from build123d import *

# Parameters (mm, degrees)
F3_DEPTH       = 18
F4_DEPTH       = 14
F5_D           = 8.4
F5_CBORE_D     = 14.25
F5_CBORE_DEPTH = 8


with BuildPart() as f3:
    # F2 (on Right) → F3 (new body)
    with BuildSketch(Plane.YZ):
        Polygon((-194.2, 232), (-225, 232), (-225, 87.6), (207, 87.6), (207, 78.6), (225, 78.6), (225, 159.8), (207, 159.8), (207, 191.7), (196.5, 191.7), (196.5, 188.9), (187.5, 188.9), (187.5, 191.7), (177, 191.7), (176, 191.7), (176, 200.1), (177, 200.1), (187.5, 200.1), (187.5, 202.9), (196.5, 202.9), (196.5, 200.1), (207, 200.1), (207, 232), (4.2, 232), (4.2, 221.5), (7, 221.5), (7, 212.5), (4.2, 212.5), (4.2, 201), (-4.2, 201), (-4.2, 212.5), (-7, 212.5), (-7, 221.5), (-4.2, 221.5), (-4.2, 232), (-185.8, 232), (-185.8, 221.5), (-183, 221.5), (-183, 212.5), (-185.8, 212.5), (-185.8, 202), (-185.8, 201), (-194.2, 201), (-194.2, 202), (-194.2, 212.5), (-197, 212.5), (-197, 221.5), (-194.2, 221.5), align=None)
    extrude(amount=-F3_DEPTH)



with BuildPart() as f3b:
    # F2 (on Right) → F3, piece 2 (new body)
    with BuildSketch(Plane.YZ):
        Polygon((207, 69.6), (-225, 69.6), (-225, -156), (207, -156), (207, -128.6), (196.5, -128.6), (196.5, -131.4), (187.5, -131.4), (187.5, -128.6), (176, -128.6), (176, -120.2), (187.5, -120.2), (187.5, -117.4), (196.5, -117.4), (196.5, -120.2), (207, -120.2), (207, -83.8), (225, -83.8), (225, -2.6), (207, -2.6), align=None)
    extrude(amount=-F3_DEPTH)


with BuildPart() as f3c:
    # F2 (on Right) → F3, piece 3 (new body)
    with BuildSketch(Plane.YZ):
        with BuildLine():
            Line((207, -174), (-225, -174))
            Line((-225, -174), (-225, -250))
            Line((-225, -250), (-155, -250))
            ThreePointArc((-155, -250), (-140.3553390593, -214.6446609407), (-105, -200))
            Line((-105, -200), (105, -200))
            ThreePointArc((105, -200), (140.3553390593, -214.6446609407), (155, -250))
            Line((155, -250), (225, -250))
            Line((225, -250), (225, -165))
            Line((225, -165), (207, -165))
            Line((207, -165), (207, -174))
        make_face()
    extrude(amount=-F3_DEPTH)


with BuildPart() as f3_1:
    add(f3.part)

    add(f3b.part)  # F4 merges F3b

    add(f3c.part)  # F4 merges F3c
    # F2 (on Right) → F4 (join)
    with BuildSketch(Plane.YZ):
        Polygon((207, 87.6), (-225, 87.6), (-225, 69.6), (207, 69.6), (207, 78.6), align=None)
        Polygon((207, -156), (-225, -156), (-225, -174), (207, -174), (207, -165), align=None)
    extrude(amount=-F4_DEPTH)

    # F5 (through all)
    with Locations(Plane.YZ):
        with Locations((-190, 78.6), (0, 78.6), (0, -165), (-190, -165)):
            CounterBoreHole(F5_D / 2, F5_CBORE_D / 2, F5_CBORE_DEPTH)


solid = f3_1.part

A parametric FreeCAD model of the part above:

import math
import FreeCAD as App
import Part
import Sketcher
from FreeCAD import Vector

doc = App.newDocument("Part")
body = doc.addObject("PartDesign::Body", "Body")

# Sketch on YZ plane
sketch1 = body.newObject("Sketcher::SketchObject", "Sketch")
sketch1.AttachmentSupport = (doc.getObject("YZ_Plane"), [""])
sketch1.MapMode = "FlatFace"
sketch1.addGeometry([
    Part.LineSegment(Vector(-194.2, 232, 0), Vector(-225, 232, 0)),  # 0
    Part.LineSegment(Vector(-225, 232, 0), Vector(-225, 87.6, 0)),  # 1
    Part.LineSegment(Vector(-225, 87.6, 0), Vector(207, 87.6, 0)),  # 2
    Part.LineSegment(Vector(207, 87.6, 0), Vector(207, 78.6, 0)),  # 3
    Part.LineSegment(Vector(207, 78.6, 0), Vector(225, 78.6, 0)),  # 4
    Part.LineSegment(Vector(225, 78.6, 0), Vector(225, 159.8, 0)),  # 5
    Part.LineSegment(Vector(225, 159.8, 0), Vector(207, 159.8, 0)),  # 6
    Part.LineSegment(Vector(207, 159.8, 0), Vector(207, 191.7, 0)),  # 7
    Part.LineSegment(Vector(207, 191.7, 0), Vector(196.5, 191.7, 0)),  # 8
    Part.LineSegment(Vector(196.5, 191.7, 0), Vector(196.5, 188.9, 0)),  # 9
    Part.LineSegment(Vector(196.5, 188.9, 0), Vector(187.5, 188.9, 0)),  # 10
    Part.LineSegment(Vector(187.5, 188.9, 0), Vector(187.5, 191.7, 0)),  # 11
    Part.LineSegment(Vector(187.5, 191.7, 0), Vector(176, 191.7, 0)),  # 12
    Part.LineSegment(Vector(176, 191.7, 0), Vector(176, 200.1, 0)),  # 13
    Part.LineSegment(Vector(176, 200.1, 0), Vector(187.5, 200.1, 0)),  # 14
    Part.LineSegment(Vector(187.5, 200.1, 0), Vector(187.5, 202.9, 0)),  # 15
    Part.LineSegment(Vector(187.5, 202.9, 0), Vector(196.5, 202.9, 0)),  # 16
    Part.LineSegment(Vector(196.5, 202.9, 0), Vector(196.5, 200.1, 0)),  # 17
    Part.LineSegment(Vector(196.5, 200.1, 0), Vector(207, 200.1, 0)),  # 18
    Part.LineSegment(Vector(207, 200.1, 0), Vector(207, 232, 0)),  # 19
    Part.LineSegment(Vector(207, 232, 0), Vector(4.2, 232, 0)),  # 20
    Part.LineSegment(Vector(4.2, 232, 0), Vector(4.2, 221.5, 0)),  # 21
    Part.LineSegment(Vector(4.2, 221.5, 0), Vector(7, 221.5, 0)),  # 22
    Part.LineSegment(Vector(7, 221.5, 0), Vector(7, 212.5, 0)),  # 23
    Part.LineSegment(Vector(7, 212.5, 0), Vector(4.2, 212.5, 0)),  # 24
    Part.LineSegment(Vector(4.2, 212.5, 0), Vector(4.2, 201, 0)),  # 25
    Part.LineSegment(Vector(4.2, 201, 0), Vector(-4.2, 201, 0)),  # 26
    Part.LineSegment(Vector(-4.2, 201, 0), Vector(-4.2, 212.5, 0)),  # 27
    Part.LineSegment(Vector(-4.2, 212.5, 0), Vector(-7, 212.5, 0)),  # 28
    Part.LineSegment(Vector(-7, 212.5, 0), Vector(-7, 221.5, 0)),  # 29
    Part.LineSegment(Vector(-7, 221.5, 0), Vector(-4.2, 221.5, 0)),  # 30
    Part.LineSegment(Vector(-4.2, 221.5, 0), Vector(-4.2, 232, 0)),  # 31
    Part.LineSegment(Vector(-4.2, 232, 0), Vector(-185.8, 232, 0)),  # 32
    Part.LineSegment(Vector(-185.8, 232, 0), Vector(-185.8, 221.5, 0)),  # 33
    Part.LineSegment(Vector(-185.8, 221.5, 0), Vector(-183, 221.5, 0)),  # 34
    Part.LineSegment(Vector(-183, 221.5, 0), Vector(-183, 212.5, 0)),  # 35
    Part.LineSegment(Vector(-183, 212.5, 0), Vector(-185.8, 212.5, 0)),  # 36
    Part.LineSegment(Vector(-185.8, 212.5, 0), Vector(-185.8, 201, 0)),  # 37
    Part.LineSegment(Vector(-185.8, 201, 0), Vector(-194.2, 201, 0)),  # 38
    Part.LineSegment(Vector(-194.2, 201, 0), Vector(-194.2, 212.5, 0)),  # 39
    Part.LineSegment(Vector(-194.2, 212.5, 0), Vector(-197, 212.5, 0)),  # 40
    Part.LineSegment(Vector(-197, 212.5, 0), Vector(-197, 221.5, 0)),  # 41
    Part.LineSegment(Vector(-197, 221.5, 0), Vector(-194.2, 221.5, 0)),  # 42
    Part.LineSegment(Vector(-194.2, 221.5, 0), Vector(-194.2, 232, 0)),  # 43
], False)
sketch1.addConstraint([
    Sketcher.Constraint("Coincident", 0, 2, 1, 1),
    Sketcher.Constraint("Coincident", 1, 2, 2, 1),
    Sketcher.Constraint("Coincident", 2, 2, 3, 1),
    Sketcher.Constraint("Coincident", 3, 2, 4, 1),
    Sketcher.Constraint("Coincident", 4, 2, 5, 1),
    Sketcher.Constraint("Coincident", 5, 2, 6, 1),
    Sketcher.Constraint("Coincident", 6, 2, 7, 1),
    Sketcher.Constraint("Coincident", 7, 2, 8, 1),
    Sketcher.Constraint("Coincident", 8, 2, 9, 1),
    Sketcher.Constraint("Coincident", 9, 2, 10, 1),
    Sketcher.Constraint("Coincident", 10, 2, 11, 1),
    Sketcher.Constraint("Coincident", 11, 2, 12, 1),
    Sketcher.Constraint("Coincident", 12, 2, 13, 1),
    Sketcher.Constraint("Coincident", 13, 2, 14, 1),
    Sketcher.Constraint("Coincident", 14, 2, 15, 1),
    Sketcher.Constraint("Coincident", 15, 2, 16, 1),
    Sketcher.Constraint("Coincident", 16, 2, 17, 1),
    Sketcher.Constraint("Coincident", 17, 2, 18, 1),
    Sketcher.Constraint("Coincident", 18, 2, 19, 1),
    Sketcher.Constraint("Coincident", 19, 2, 20, 1),
    Sketcher.Constraint("Coincident", 20, 2, 21, 1),
    Sketcher.Constraint("Coincident", 21, 2, 22, 1),
    Sketcher.Constraint("Coincident", 22, 2, 23, 1),
    Sketcher.Constraint("Coincident", 23, 2, 24, 1),
    Sketcher.Constraint("Coincident", 24, 2, 25, 1),
    Sketcher.Constraint("Coincident", 25, 2, 26, 1),
    Sketcher.Constraint("Coincident", 26, 2, 27, 1),
    Sketcher.Constraint("Coincident", 27, 2, 28, 1),
    Sketcher.Constraint("Coincident", 28, 2, 29, 1),
    Sketcher.Constraint("Coincident", 29, 2, 30, 1),
    Sketcher.Constraint("Coincident", 30, 2, 31, 1),
    Sketcher.Constraint("Coincident", 31, 2, 32, 1),
    Sketcher.Constraint("Coincident", 32, 2, 33, 1),
    Sketcher.Constraint("Coincident", 33, 2, 34, 1),
    Sketcher.Constraint("Coincident", 34, 2, 35, 1),
    Sketcher.Constraint("Coincident", 35, 2, 36, 1),
    Sketcher.Constraint("Coincident", 36, 2, 37, 1),
    Sketcher.Constraint("Coincident", 37, 2, 38, 1),
    Sketcher.Constraint("Coincident", 38, 2, 39, 1),
    Sketcher.Constraint("Coincident", 39, 2, 40, 1),
    Sketcher.Constraint("Coincident", 40, 2, 41, 1),
    Sketcher.Constraint("Coincident", 41, 2, 42, 1),
    Sketcher.Constraint("Coincident", 42, 2, 43, 1),
    Sketcher.Constraint("Coincident", 43, 2, 0, 1),
    Sketcher.Constraint("Horizontal", 0),
    Sketcher.Constraint("Vertical", 1),
    Sketcher.Constraint("Horizontal", 2),
    Sketcher.Constraint("Vertical", 3),
    Sketcher.Constraint("Horizontal", 4),
    Sketcher.Constraint("Vertical", 5),
    Sketcher.Constraint("Horizontal", 6),
    Sketcher.Constraint("Vertical", 7),
    Sketcher.Constraint("Horizontal", 8),
    Sketcher.Constraint("Vertical", 9),
    Sketcher.Constraint("Horizontal", 10),
    Sketcher.Constraint("Vertical", 11),
    Sketcher.Constraint("Horizontal", 12),
    Sketcher.Constraint("Vertical", 13),
    Sketcher.Constraint("Horizontal", 14),
    Sketcher.Constraint("Vertical", 15),
    Sketcher.Constraint("Horizontal", 16),
    Sketcher.Constraint("Vertical", 17),
    Sketcher.Constraint("Horizontal", 18),
    Sketcher.Constraint("Vertical", 19),
    Sketcher.Constraint("Horizontal", 20),
    Sketcher.Constraint("Vertical", 21),
    Sketcher.Constraint("Horizontal", 22),
    Sketcher.Constraint("Vertical", 23),
    Sketcher.Constraint("Horizontal", 24),
    Sketcher.Constraint("Vertical", 25),
    Sketcher.Constraint("Horizontal", 26),
    Sketcher.Constraint("Vertical", 27),
    Sketcher.Constraint("Horizontal", 28),
    Sketcher.Constraint("Vertical", 29),
    Sketcher.Constraint("Horizontal", 30),
    Sketcher.Constraint("Vertical", 31),
    Sketcher.Constraint("Horizontal", 32),
    Sketcher.Constraint("Vertical", 33),
    Sketcher.Constraint("Horizontal", 34),
    Sketcher.Constraint("Vertical", 35),
    Sketcher.Constraint("Horizontal", 36),
    Sketcher.Constraint("Vertical", 37),
    Sketcher.Constraint("Horizontal", 38),
    Sketcher.Constraint("Vertical", 39),
    Sketcher.Constraint("Horizontal", 40),
    Sketcher.Constraint("Vertical", 41),
    Sketcher.Constraint("Horizontal", 42),
    Sketcher.Constraint("Vertical", 43),
    Sketcher.Constraint("Symmetric", 24, 2, 27, 2, -2),
    Sketcher.Constraint("Symmetric", 22, 2, 29, 2, -2),
    Sketcher.Constraint("Symmetric", 20, 2, 31, 2, -2),
    Sketcher.Constraint("Horizontal", 8, 2, 11, 2),
    Sketcher.Constraint("Horizontal", 14, 2, 17, 2),
    Sketcher.Constraint("Horizontal", 0, 2, 19, 2),
    Sketcher.Constraint("Horizontal", 30, 2, 33, 2),
    Sketcher.Constraint("Horizontal", 28, 2, 35, 2),
    Sketcher.Constraint("Horizontal", 26, 2, 37, 2),
    Sketcher.Constraint("Horizontal", 36, 2, 39, 2),
    Sketcher.Constraint("Horizontal", 34, 2, 41, 2),
    Sketcher.Constraint("Vertical", 3, 2, 6, 2),
    Sketcher.Constraint("Vertical", 11, 2, 14, 2),
    Sketcher.Constraint("Vertical", 9, 2, 16, 2),
    Sketcher.Constraint("Vertical", 7, 2, 18, 2),
    Sketcher.Constraint("Vertical", 21, 2, 24, 2),
    Sketcher.Constraint("Vertical", 33, 2, 36, 2),
    Sketcher.Constraint("Vertical", 39, 2, 42, 2),
    Sketcher.Constraint("Equal", 30, 34),
    Sketcher.Constraint("Equal", 26, 38),
    Sketcher.Constraint("Equal", 36, 40),
    Sketcher.Constraint("Equal", 16, 3),
    Sketcher.Constraint("Equal", 42, 9),
    Sketcher.Constraint("Equal", 38, 13),
    Sketcher.Constraint("Equal", 11, 15),
    Sketcher.Constraint("Equal", 7, 19),
    Sketcher.Constraint("Equal", 18, 21),
    Sketcher.Constraint("Equal", 3, 23),
    Sketcher.Constraint("Equal", 14, 25),
    Sketcher.Constraint("DistanceX", 2, 1, 2, 2, 432.0),
    Sketcher.Constraint("DistanceX", 4, 1, 4, 2, 18.0),
    Sketcher.Constraint("DistanceX", 10, 2, 10, 1, 9.0),
    Sketcher.Constraint("DistanceX", 0, 2, 0, 1, 30.8),
    Sketcher.Constraint("DistanceX", 8, 2, 8, 1, 10.5),
    Sketcher.Constraint("DistanceX", 12, 2, 12, 1, 11.5),
    Sketcher.Constraint("DistanceX", 20, 2, 20, 1, 202.8),
    Sketcher.Constraint("DistanceX", 22, 1, 22, 2, 2.8),
    Sketcher.Constraint("DistanceX", 26, 2, 26, 1, 8.4),
    Sketcher.Constraint("DistanceY", 1, 2, 1, 1, 144.4),
    Sketcher.Constraint("DistanceY", 5, 1, 5, 2, 81.2),
    Sketcher.Constraint("DistanceY", -1, 1, 0, 2, 232.0),
])
pad1 = body.newObject("PartDesign::Pad", "Pad")
pad1.Profile = sketch1
pad1.Length = 18
pad1.Reversed = True
body2 = doc.addObject("PartDesign::Body", "Body001")

# Sketch on YZ plane
sketch2 = body2.newObject("Sketcher::SketchObject", "Sketch001")
sketch2.AttachmentSupport = (doc.getObject("YZ_Plane001"), [""])
sketch2.MapMode = "FlatFace"
sketch2.addGeometry([
    Part.LineSegment(Vector(207, 69.6, 0), Vector(-225, 69.6, 0)),  # 0
    Part.LineSegment(Vector(-225, 69.6, 0), Vector(-225, -156, 0)),  # 1
    Part.LineSegment(Vector(-225, -156, 0), Vector(207, -156, 0)),  # 2
    Part.LineSegment(Vector(207, -156, 0), Vector(207, -128.6, 0)),  # 3
    Part.LineSegment(Vector(207, -128.6, 0), Vector(196.5, -128.6, 0)),  # 4
    Part.LineSegment(Vector(196.5, -128.6, 0), Vector(196.5, -131.4, 0)),  # 5
    Part.LineSegment(Vector(196.5, -131.4, 0), Vector(187.5, -131.4, 0)),  # 6
    Part.LineSegment(Vector(187.5, -131.4, 0), Vector(187.5, -128.6, 0)),  # 7
    Part.LineSegment(Vector(187.5, -128.6, 0), Vector(176, -128.6, 0)),  # 8
    Part.LineSegment(Vector(176, -128.6, 0), Vector(176, -120.2, 0)),  # 9
    Part.LineSegment(Vector(176, -120.2, 0), Vector(187.5, -120.2, 0)),  # 10
    Part.LineSegment(Vector(187.5, -120.2, 0), Vector(187.5, -117.4, 0)),  # 11
    Part.LineSegment(Vector(187.5, -117.4, 0), Vector(196.5, -117.4, 0)),  # 12
    Part.LineSegment(Vector(196.5, -117.4, 0), Vector(196.5, -120.2, 0)),  # 13
    Part.LineSegment(Vector(196.5, -120.2, 0), Vector(207, -120.2, 0)),  # 14
    Part.LineSegment(Vector(207, -120.2, 0), Vector(207, -83.8, 0)),  # 15
    Part.LineSegment(Vector(207, -83.8, 0), Vector(225, -83.8, 0)),  # 16
    Part.LineSegment(Vector(225, -83.8, 0), Vector(225, -2.6, 0)),  # 17
    Part.LineSegment(Vector(225, -2.6, 0), Vector(207, -2.6, 0)),  # 18
    Part.LineSegment(Vector(207, -2.6, 0), Vector(207, 69.6, 0)),  # 19
], False)
sketch2.addConstraint([
    Sketcher.Constraint("Coincident", 0, 2, 1, 1),
    Sketcher.Constraint("Coincident", 1, 2, 2, 1),
    Sketcher.Constraint("Coincident", 2, 2, 3, 1),
    Sketcher.Constraint("Coincident", 3, 2, 4, 1),
    Sketcher.Constraint("Coincident", 4, 2, 5, 1),
    Sketcher.Constraint("Coincident", 5, 2, 6, 1),
    Sketcher.Constraint("Coincident", 6, 2, 7, 1),
    Sketcher.Constraint("Coincident", 7, 2, 8, 1),
    Sketcher.Constraint("Coincident", 8, 2, 9, 1),
    Sketcher.Constraint("Coincident", 9, 2, 10, 1),
    Sketcher.Constraint("Coincident", 10, 2, 11, 1),
    Sketcher.Constraint("Coincident", 11, 2, 12, 1),
    Sketcher.Constraint("Coincident", 12, 2, 13, 1),
    Sketcher.Constraint("Coincident", 13, 2, 14, 1),
    Sketcher.Constraint("Coincident", 14, 2, 15, 1),
    Sketcher.Constraint("Coincident", 15, 2, 16, 1),
    Sketcher.Constraint("Coincident", 16, 2, 17, 1),
    Sketcher.Constraint("Coincident", 17, 2, 18, 1),
    Sketcher.Constraint("Coincident", 18, 2, 19, 1),
    Sketcher.Constraint("Coincident", 19, 2, 0, 1),
    Sketcher.Constraint("Horizontal", 0),
    Sketcher.Constraint("Vertical", 1),
    Sketcher.Constraint("Horizontal", 2),
    Sketcher.Constraint("Vertical", 3),
    Sketcher.Constraint("Horizontal", 4),
    Sketcher.Constraint("Vertical", 5),
    Sketcher.Constraint("Horizontal", 6),
    Sketcher.Constraint("Vertical", 7),
    Sketcher.Constraint("Horizontal", 8),
    Sketcher.Constraint("Vertical", 9),
    Sketcher.Constraint("Horizontal", 10),
    Sketcher.Constraint("Vertical", 11),
    Sketcher.Constraint("Horizontal", 12),
    Sketcher.Constraint("Vertical", 13),
    Sketcher.Constraint("Horizontal", 14),
    Sketcher.Constraint("Vertical", 15),
    Sketcher.Constraint("Horizontal", 16),
    Sketcher.Constraint("Vertical", 17),
    Sketcher.Constraint("Horizontal", 18),
    Sketcher.Constraint("Vertical", 19),
    Sketcher.Constraint("Horizontal", 4, 2, 7, 2),
    Sketcher.Constraint("Horizontal", 10, 2, 13, 2),
    Sketcher.Constraint("Vertical", 7, 2, 10, 2),
    Sketcher.Constraint("Vertical", 5, 2, 12, 2),
    Sketcher.Constraint("Vertical", 3, 2, 14, 2),
    Sketcher.Constraint("Vertical", 15, 2, 18, 2),
    Sketcher.Constraint("Equal", 7, 11),
    Sketcher.Constraint("DistanceX", 0, 2, 0, 1, 432.0),
    Sketcher.Constraint("DistanceX", 6, 2, 6, 1, 9.0),
    Sketcher.Constraint("DistanceX", 16, 1, 16, 2, 18.0),
    Sketcher.Constraint("DistanceX", 4, 2, 4, 1, 10.5),
    Sketcher.Constraint("DistanceX", 8, 2, 8, 1, 11.5),
    Sketcher.Constraint("DistanceY", 1, 2, 1, 1, 225.6),
    Sketcher.Constraint("DistanceY", 3, 1, 3, 2, 27.4),
    Sketcher.Constraint("DistanceY", 5, 2, 5, 1, 2.8),
    Sketcher.Constraint("DistanceY", 9, 1, 9, 2, 8.4),
    Sketcher.Constraint("DistanceY", 15, 1, 15, 2, 36.4),
    Sketcher.Constraint("DistanceY", 17, 1, 17, 2, 81.2),
    Sketcher.Constraint("DistanceX", 0, 2, -1, 1, 225.0),
    Sketcher.Constraint("DistanceY", 1, 2, -1, 1, 156.0),
])
pad2 = body2.newObject("PartDesign::Pad", "Pad001")
pad2.Profile = sketch2
pad2.Length = 18
pad2.Reversed = True
body3 = doc.addObject("PartDesign::Body", "Body002")

# Sketch on YZ plane
sketch3 = body3.newObject("Sketcher::SketchObject", "Sketch002")
sketch3.AttachmentSupport = (doc.getObject("YZ_Plane002"), [""])
sketch3.MapMode = "FlatFace"
sketch3.addGeometry([
    Part.LineSegment(Vector(207, -174, 0), Vector(-225, -174, 0)),  # 0
    Part.LineSegment(Vector(-225, -174, 0), Vector(-225, -250, 0)),  # 1
    Part.LineSegment(Vector(-225, -250, 0), Vector(-155, -250, 0)),  # 2
    Part.ArcOfCircle(Part.Circle(Vector(-105, -250, 0), Vector(0, 0, 1), 50), math.radians(90), math.radians(180)),  # 3
    Part.LineSegment(Vector(-105, -200, 0), Vector(105, -200, 0)),  # 4
    Part.ArcOfCircle(Part.Circle(Vector(105, -250, 0), Vector(0, 0, 1), 50), math.radians(0), math.radians(90)),  # 5
    Part.LineSegment(Vector(155, -250, 0), Vector(225, -250, 0)),  # 6
    Part.LineSegment(Vector(225, -250, 0), Vector(225, -165, 0)),  # 7
    Part.LineSegment(Vector(225, -165, 0), Vector(207, -165, 0)),  # 8
    Part.LineSegment(Vector(207, -165, 0), Vector(207, -174, 0)),  # 9
], False)
sketch3.addConstraint([
    Sketcher.Constraint("Coincident", 0, 2, 1, 1),
    Sketcher.Constraint("Coincident", 1, 2, 2, 1),
    Sketcher.Constraint("Coincident", 2, 2, 3, 2),
    Sketcher.Constraint("Tangent", 3, 1, 4, 1),
    Sketcher.Constraint("Tangent", 4, 2, 5, 2),
    Sketcher.Constraint("Coincident", 5, 1, 6, 1),
    Sketcher.Constraint("Coincident", 6, 2, 7, 1),
    Sketcher.Constraint("Coincident", 7, 2, 8, 1),
    Sketcher.Constraint("Coincident", 8, 2, 9, 1),
    Sketcher.Constraint("Coincident", 9, 2, 0, 1),
    Sketcher.Constraint("Horizontal", 0),
    Sketcher.Constraint("Vertical", 1),
    Sketcher.Constraint("Horizontal", 2),
    Sketcher.Constraint("Horizontal", 4),
    Sketcher.Constraint("Horizontal", 6),
    Sketcher.Constraint("Vertical", 7),
    Sketcher.Constraint("Horizontal", 8),
    Sketcher.Constraint("Vertical", 9),
    Sketcher.Constraint("Equal", 3, 5),
    Sketcher.Constraint("Symmetric", 2, 2, 5, 1, -2),
    Sketcher.Constraint("Horizontal", 5, 3, 1, 2),
    Sketcher.Constraint("Equal", 2, 6),
    Sketcher.Constraint("Radius", 3, 50.0),
    Sketcher.Constraint("DistanceX", 0, 2, 0, 1, 432.0),
    Sketcher.Constraint("DistanceX", 2, 1, 2, 2, 70.0),
    Sketcher.Constraint("DistanceX", 4, 1, 4, 2, 210.0),
    Sketcher.Constraint("DistanceY", 1, 2, 1, 1, 76.0),
    Sketcher.Constraint("DistanceY", 7, 1, 7, 2, 85.0),
    Sketcher.Constraint("DistanceY", 3, 3, -1, 1, 250.0),
])
pad3 = body3.newObject("PartDesign::Pad", "Pad002")
pad3.Profile = sketch3
pad3.Length = 18
pad3.Reversed = True
body.AllowCompound = True
doc.recompute()

boolean = body.newObject("PartDesign::Boolean", "Boolean")
boolean.Type = "Fuse"
boolean.addObjects([body2])
doc.recompute()

boolean2 = body.newObject("PartDesign::Boolean", "Boolean001")
boolean2.Type = "Fuse"
boolean2.addObjects([body3])

# Sketch on YZ plane
sketch4 = body.newObject("Sketcher::SketchObject", "Sketch003")
sketch4.AttachmentSupport = (doc.getObject("YZ_Plane"), [""])
sketch4.MapMode = "FlatFace"
sketch4.addGeometry([
    Part.LineSegment(Vector(207, 88, 0), Vector(-225, 88, 0)),  # 0
    Part.LineSegment(Vector(-225, 88, 0), Vector(-225, 70, 0)),  # 1
    Part.LineSegment(Vector(-225, 70, 0), Vector(207, 70, 0)),  # 2
    Part.LineSegment(Vector(207, 70, 0), Vector(207, 88, 0)),  # 3
    Part.LineSegment(Vector(207, -156, 0), Vector(-225, -156, 0)),  # 4
    Part.LineSegment(Vector(-225, -156, 0), Vector(-225, -174, 0)),  # 5
    Part.LineSegment(Vector(-225, -174, 0), Vector(207, -174, 0)),  # 6
    Part.LineSegment(Vector(207, -174, 0), Vector(207, -156, 0)),  # 7
], False)
sketch4.addConstraint([
    Sketcher.Constraint("Coincident", 0, 2, 1, 1),
    Sketcher.Constraint("Coincident", 1, 2, 2, 1),
    Sketcher.Constraint("Coincident", 2, 2, 3, 1),
    Sketcher.Constraint("Coincident", 3, 2, 0, 1),
    Sketcher.Constraint("Coincident", 4, 2, 5, 1),
    Sketcher.Constraint("Coincident", 5, 2, 6, 1),
    Sketcher.Constraint("Coincident", 6, 2, 7, 1),
    Sketcher.Constraint("Coincident", 7, 2, 4, 1),
    Sketcher.Constraint("Horizontal", 0),
    Sketcher.Constraint("Vertical", 1),
    Sketcher.Constraint("Horizontal", 2),
    Sketcher.Constraint("Vertical", 3),
    Sketcher.Constraint("Horizontal", 4),
    Sketcher.Constraint("Vertical", 5),
    Sketcher.Constraint("Horizontal", 6),
    Sketcher.Constraint("Vertical", 7),
    Sketcher.Constraint("Vertical", 1, 2, 4, 2),
    Sketcher.Constraint("Vertical", 3, 2, 6, 2),
    Sketcher.Constraint("Equal", 3, 5),
    Sketcher.Constraint("DistanceX", 0, 2, 0, 1, 432.0),
    Sketcher.Constraint("DistanceY", 1, 2, 1, 1, 18.0),
    Sketcher.Constraint("DistanceX", 0, 2, -1, 1, 225.0),
    Sketcher.Constraint("DistanceY", 4, 2, -1, 1, 156.0),
    Sketcher.Constraint("DistanceY", -1, 1, 0, 2, 87.6),
])
pad4 = body.newObject("PartDesign::Pad", "Pad003")
pad4.Profile = sketch4
pad4.Length = 14
pad4.Reversed = True

# Sketch on YZ plane
sketch5 = body.newObject("Sketcher::SketchObject", "Sketch004")
sketch5.AttachmentSupport = (doc.getObject("YZ_Plane"), [""])
sketch5.MapMode = "FlatFace"
sketch5.addGeometry([
    Part.Circle(Vector(-190, 78.6, 0), Vector(0, 0, 1), 4.2),
    Part.Circle(Vector(0, 78.6, 0), Vector(0, 0, 1), 4.2),
    Part.Circle(Vector(0, -165, 0), Vector(0, 0, 1), 4.2),
    Part.Circle(Vector(-190, -165, 0), Vector(0, 0, 1), 4.2),
], False)
sketch5.addConstraint([
    Sketcher.Constraint("Equal", 0, 1),
    Sketcher.Constraint("Equal", 1, 2),
    Sketcher.Constraint("Equal", 2, 3),
    Sketcher.Constraint("PointOnObject", 1, 3, -2),
    Sketcher.Constraint("PointOnObject", 2, 3, -2),
    Sketcher.Constraint("Horizontal", 0, 3, 1, 3),
    Sketcher.Constraint("Horizontal", 2, 3, 3, 3),
    Sketcher.Constraint("Vertical", 0, 3, 3, 3),
    Sketcher.Constraint("Diameter", 0, 8.4),
    Sketcher.Constraint("DistanceX", 0, 3, -1, 1, 190.0),
    Sketcher.Constraint("DistanceY", 2, 3, -1, 1, 165.0),
    Sketcher.Constraint("DistanceY", -1, 1, 0, 3, 78.6),
])
doc.recompute()
hole = body.newObject("PartDesign::Hole", "Hole")
hole.Profile = sketch5
hole.ThreadType = "None"
hole.Diameter = 8.4
hole.DepthType = "ThroughAll"
hole.HoleCutType = "Counterbore"
hole.HoleCutDiameter = 14.25
hole.HoleCutDepth = 8

doc.recompute()
